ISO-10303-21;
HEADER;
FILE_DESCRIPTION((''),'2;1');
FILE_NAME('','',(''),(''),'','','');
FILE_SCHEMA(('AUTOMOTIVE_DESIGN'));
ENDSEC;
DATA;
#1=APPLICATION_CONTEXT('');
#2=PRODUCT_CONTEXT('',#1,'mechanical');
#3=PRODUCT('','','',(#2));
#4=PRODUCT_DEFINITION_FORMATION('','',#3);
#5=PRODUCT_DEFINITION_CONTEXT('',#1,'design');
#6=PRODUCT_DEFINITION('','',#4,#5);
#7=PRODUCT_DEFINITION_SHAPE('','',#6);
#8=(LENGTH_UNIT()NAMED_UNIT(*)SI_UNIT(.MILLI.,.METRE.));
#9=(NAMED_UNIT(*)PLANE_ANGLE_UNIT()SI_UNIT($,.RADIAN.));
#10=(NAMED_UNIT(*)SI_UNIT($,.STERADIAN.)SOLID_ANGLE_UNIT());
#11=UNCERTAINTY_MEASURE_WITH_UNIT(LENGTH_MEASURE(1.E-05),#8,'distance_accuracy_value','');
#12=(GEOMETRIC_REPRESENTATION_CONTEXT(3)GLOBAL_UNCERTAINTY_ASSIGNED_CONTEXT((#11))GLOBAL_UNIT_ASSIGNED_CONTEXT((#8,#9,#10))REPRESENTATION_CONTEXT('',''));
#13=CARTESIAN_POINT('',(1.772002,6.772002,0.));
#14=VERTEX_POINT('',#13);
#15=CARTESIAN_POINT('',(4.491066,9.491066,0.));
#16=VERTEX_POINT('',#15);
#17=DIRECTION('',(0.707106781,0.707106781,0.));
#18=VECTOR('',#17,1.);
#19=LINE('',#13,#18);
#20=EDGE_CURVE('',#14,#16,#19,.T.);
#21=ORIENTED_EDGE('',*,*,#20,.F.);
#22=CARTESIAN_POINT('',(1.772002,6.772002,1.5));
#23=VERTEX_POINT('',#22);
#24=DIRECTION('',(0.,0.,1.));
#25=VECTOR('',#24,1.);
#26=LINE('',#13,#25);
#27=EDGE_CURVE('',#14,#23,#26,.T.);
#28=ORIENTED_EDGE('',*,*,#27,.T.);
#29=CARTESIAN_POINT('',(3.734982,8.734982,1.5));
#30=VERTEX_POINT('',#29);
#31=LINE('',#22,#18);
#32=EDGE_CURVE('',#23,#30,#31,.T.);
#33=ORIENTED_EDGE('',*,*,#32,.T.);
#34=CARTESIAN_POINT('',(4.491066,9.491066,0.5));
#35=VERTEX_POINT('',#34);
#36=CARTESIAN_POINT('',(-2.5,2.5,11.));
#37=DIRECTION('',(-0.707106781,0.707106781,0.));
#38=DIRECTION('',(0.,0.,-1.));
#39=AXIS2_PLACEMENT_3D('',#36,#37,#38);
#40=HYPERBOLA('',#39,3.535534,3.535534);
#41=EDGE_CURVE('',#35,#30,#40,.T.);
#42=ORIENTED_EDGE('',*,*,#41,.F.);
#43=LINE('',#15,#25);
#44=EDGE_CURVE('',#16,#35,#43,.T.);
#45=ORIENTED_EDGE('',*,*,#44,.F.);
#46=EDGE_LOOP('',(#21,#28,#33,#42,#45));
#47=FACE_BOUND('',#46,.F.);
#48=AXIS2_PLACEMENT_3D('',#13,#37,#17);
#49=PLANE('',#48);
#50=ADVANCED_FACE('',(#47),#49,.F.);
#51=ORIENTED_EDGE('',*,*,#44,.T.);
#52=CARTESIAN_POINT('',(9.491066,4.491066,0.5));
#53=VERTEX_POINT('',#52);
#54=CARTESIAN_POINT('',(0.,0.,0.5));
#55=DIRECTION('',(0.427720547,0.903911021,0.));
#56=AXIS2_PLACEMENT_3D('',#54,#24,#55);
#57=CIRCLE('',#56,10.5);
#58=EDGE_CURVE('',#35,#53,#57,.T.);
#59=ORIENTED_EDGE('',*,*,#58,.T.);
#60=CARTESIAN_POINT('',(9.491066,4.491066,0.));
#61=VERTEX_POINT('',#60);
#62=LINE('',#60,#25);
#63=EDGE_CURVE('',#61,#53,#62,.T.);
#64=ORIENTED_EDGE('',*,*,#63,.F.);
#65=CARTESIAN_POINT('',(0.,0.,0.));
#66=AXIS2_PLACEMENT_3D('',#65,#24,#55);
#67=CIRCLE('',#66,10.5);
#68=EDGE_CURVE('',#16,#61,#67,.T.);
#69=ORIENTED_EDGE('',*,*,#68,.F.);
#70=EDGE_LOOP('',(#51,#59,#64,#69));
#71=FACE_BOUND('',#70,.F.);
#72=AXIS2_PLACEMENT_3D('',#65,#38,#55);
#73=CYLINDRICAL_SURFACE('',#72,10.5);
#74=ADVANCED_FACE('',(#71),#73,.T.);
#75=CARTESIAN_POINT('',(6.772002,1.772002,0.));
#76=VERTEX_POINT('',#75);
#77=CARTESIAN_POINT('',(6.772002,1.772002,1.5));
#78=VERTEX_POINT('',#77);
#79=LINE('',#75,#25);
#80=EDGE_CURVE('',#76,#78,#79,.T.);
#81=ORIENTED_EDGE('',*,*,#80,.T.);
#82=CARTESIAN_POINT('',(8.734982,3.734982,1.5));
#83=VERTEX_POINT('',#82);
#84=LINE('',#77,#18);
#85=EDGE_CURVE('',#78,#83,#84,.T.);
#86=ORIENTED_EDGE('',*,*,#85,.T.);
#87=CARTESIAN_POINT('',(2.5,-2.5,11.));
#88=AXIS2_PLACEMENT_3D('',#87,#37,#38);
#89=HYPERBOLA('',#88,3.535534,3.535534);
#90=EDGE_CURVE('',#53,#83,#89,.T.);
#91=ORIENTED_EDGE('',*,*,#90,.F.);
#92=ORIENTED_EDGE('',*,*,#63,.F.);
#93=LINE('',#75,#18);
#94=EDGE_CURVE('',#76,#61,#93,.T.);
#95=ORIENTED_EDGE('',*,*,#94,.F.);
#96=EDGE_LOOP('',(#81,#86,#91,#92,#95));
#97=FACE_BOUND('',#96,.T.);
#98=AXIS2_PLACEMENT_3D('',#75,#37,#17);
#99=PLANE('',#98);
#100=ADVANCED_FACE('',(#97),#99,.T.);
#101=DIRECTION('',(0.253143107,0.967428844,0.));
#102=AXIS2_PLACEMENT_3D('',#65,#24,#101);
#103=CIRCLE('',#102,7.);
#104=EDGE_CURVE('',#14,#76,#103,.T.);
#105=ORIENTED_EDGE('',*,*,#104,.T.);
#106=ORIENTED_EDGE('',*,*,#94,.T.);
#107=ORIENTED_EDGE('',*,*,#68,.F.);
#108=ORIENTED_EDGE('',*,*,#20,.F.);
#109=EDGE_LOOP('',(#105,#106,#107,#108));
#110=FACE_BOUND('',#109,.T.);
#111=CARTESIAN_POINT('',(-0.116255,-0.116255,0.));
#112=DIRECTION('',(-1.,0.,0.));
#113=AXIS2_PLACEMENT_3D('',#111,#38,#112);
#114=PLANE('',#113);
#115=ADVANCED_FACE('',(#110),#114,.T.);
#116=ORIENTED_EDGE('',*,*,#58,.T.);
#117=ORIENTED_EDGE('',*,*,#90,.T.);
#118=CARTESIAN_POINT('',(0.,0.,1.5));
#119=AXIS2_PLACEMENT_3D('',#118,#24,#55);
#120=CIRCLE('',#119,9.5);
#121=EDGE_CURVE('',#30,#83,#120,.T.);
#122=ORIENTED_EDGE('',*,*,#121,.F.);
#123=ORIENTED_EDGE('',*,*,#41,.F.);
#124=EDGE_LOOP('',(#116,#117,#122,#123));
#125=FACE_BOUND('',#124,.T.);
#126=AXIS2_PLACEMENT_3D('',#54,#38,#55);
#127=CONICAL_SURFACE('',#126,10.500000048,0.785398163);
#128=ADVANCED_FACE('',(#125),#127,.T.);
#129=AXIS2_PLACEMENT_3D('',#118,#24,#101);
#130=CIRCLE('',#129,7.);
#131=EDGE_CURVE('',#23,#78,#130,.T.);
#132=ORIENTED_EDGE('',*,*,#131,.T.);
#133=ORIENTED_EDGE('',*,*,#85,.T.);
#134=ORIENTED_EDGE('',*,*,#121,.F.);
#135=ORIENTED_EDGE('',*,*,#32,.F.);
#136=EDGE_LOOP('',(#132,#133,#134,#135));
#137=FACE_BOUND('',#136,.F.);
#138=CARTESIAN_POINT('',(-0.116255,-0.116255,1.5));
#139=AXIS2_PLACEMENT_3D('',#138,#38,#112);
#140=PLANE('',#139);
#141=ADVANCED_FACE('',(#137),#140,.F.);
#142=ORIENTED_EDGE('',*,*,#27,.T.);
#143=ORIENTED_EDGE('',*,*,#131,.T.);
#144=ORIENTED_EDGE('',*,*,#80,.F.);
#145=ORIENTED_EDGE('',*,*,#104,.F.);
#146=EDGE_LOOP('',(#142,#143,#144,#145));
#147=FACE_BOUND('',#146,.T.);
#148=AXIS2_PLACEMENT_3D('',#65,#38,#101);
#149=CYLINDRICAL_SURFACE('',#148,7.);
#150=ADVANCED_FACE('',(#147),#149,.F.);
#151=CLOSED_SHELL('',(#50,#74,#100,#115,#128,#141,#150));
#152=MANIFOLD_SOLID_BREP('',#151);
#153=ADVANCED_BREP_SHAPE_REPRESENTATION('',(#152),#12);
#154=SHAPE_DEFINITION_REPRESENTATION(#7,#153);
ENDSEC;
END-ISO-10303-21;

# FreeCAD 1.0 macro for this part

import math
import FreeCAD as App
import Part
import Sketcher
Q = App.Units.Quantity


def edges_at(feature, points):
    """Names of the edges that pass closest to the given points."""
    edges = feature.Shape.Edges
    near = lambda p: min(range(len(edges)), key=lambda i: edges[i].distToShape(Part.Vertex(*p))[0])
    return sorted({f"Edge{near(p) + 1}" for p in points})

doc = App.newDocument("Part")
body = doc.addObject("PartDesign::Body", "Body")

# Sketch on XY plane
sketch1 = doc.addObject("Sketcher::SketchObject", "Sketch")
body.addObject(sketch1)
sketch1.AttachmentSupport = (doc.XY_Plane, [""])
sketch1.MapMode = "FlatFace"
sketch1.addGeometry([
    Part.ArcOfCircle(Part.Circle(App.Vector(0, 0, 0), App.Vector(0, 0, 1), 7), math.radians(75), math.radians(375)),
    Part.LineSegment(App.Vector(1.8, 6.8, 0), App.Vector(4.5, 9.5, 0)),
    Part.ArcOfCircle(Part.Circle(App.Vector(0, 0, 0), App.Vector(0, 0, 1), 10.5), math.radians(65), math.radians(385)),
    Part.LineSegment(App.Vector(9.5, 4.5, 0), App.Vector(6.8, 1.8, 0)),
], False)
sketch1.addConstraint([
    Sketcher.Constraint("Coincident", 0, 1, 1, 1),
    Sketcher.Constraint("Coincident", 1, 2, 2, 1),
    Sketcher.Constraint("Coincident", 2, 2, 3, 1),
    Sketcher.Constraint("Coincident", 3, 2, 0, 2),
    Sketcher.Constraint("Coincident", 0, 3, -1, 1),
    Sketcher.Constraint("Coincident", 2, 3, -1, 1),
    Sketcher.Constraint("Parallel", 1, 3),
    Sketcher.Constraint("Equal", 1, 3),
    Sketcher.Constraint("Radius", 0, 7.0),
    Sketcher.Constraint("Radius", 2, 10.5),
    Sketcher.Constraint("Angle", 1, Q("45 deg")),
    Sketcher.Constraint("DistanceX", 1, 2, 2, 2, 5.0),
])
pad1 = doc.addObject("PartDesign::Pad", "Pad")
body.addObject(pad1)
pad1.Profile = sketch1
pad1.Length = 1.5
doc.recompute()

chamfer = doc.addObject("PartDesign::Chamfer", "Chamfer")
body.addObject(chamfer)
chamfer.Base = (pad1, edges_at(pad1, [(-7.425, -7.425, 1.5)]))
chamfer.Size = 1

doc.recompute()
